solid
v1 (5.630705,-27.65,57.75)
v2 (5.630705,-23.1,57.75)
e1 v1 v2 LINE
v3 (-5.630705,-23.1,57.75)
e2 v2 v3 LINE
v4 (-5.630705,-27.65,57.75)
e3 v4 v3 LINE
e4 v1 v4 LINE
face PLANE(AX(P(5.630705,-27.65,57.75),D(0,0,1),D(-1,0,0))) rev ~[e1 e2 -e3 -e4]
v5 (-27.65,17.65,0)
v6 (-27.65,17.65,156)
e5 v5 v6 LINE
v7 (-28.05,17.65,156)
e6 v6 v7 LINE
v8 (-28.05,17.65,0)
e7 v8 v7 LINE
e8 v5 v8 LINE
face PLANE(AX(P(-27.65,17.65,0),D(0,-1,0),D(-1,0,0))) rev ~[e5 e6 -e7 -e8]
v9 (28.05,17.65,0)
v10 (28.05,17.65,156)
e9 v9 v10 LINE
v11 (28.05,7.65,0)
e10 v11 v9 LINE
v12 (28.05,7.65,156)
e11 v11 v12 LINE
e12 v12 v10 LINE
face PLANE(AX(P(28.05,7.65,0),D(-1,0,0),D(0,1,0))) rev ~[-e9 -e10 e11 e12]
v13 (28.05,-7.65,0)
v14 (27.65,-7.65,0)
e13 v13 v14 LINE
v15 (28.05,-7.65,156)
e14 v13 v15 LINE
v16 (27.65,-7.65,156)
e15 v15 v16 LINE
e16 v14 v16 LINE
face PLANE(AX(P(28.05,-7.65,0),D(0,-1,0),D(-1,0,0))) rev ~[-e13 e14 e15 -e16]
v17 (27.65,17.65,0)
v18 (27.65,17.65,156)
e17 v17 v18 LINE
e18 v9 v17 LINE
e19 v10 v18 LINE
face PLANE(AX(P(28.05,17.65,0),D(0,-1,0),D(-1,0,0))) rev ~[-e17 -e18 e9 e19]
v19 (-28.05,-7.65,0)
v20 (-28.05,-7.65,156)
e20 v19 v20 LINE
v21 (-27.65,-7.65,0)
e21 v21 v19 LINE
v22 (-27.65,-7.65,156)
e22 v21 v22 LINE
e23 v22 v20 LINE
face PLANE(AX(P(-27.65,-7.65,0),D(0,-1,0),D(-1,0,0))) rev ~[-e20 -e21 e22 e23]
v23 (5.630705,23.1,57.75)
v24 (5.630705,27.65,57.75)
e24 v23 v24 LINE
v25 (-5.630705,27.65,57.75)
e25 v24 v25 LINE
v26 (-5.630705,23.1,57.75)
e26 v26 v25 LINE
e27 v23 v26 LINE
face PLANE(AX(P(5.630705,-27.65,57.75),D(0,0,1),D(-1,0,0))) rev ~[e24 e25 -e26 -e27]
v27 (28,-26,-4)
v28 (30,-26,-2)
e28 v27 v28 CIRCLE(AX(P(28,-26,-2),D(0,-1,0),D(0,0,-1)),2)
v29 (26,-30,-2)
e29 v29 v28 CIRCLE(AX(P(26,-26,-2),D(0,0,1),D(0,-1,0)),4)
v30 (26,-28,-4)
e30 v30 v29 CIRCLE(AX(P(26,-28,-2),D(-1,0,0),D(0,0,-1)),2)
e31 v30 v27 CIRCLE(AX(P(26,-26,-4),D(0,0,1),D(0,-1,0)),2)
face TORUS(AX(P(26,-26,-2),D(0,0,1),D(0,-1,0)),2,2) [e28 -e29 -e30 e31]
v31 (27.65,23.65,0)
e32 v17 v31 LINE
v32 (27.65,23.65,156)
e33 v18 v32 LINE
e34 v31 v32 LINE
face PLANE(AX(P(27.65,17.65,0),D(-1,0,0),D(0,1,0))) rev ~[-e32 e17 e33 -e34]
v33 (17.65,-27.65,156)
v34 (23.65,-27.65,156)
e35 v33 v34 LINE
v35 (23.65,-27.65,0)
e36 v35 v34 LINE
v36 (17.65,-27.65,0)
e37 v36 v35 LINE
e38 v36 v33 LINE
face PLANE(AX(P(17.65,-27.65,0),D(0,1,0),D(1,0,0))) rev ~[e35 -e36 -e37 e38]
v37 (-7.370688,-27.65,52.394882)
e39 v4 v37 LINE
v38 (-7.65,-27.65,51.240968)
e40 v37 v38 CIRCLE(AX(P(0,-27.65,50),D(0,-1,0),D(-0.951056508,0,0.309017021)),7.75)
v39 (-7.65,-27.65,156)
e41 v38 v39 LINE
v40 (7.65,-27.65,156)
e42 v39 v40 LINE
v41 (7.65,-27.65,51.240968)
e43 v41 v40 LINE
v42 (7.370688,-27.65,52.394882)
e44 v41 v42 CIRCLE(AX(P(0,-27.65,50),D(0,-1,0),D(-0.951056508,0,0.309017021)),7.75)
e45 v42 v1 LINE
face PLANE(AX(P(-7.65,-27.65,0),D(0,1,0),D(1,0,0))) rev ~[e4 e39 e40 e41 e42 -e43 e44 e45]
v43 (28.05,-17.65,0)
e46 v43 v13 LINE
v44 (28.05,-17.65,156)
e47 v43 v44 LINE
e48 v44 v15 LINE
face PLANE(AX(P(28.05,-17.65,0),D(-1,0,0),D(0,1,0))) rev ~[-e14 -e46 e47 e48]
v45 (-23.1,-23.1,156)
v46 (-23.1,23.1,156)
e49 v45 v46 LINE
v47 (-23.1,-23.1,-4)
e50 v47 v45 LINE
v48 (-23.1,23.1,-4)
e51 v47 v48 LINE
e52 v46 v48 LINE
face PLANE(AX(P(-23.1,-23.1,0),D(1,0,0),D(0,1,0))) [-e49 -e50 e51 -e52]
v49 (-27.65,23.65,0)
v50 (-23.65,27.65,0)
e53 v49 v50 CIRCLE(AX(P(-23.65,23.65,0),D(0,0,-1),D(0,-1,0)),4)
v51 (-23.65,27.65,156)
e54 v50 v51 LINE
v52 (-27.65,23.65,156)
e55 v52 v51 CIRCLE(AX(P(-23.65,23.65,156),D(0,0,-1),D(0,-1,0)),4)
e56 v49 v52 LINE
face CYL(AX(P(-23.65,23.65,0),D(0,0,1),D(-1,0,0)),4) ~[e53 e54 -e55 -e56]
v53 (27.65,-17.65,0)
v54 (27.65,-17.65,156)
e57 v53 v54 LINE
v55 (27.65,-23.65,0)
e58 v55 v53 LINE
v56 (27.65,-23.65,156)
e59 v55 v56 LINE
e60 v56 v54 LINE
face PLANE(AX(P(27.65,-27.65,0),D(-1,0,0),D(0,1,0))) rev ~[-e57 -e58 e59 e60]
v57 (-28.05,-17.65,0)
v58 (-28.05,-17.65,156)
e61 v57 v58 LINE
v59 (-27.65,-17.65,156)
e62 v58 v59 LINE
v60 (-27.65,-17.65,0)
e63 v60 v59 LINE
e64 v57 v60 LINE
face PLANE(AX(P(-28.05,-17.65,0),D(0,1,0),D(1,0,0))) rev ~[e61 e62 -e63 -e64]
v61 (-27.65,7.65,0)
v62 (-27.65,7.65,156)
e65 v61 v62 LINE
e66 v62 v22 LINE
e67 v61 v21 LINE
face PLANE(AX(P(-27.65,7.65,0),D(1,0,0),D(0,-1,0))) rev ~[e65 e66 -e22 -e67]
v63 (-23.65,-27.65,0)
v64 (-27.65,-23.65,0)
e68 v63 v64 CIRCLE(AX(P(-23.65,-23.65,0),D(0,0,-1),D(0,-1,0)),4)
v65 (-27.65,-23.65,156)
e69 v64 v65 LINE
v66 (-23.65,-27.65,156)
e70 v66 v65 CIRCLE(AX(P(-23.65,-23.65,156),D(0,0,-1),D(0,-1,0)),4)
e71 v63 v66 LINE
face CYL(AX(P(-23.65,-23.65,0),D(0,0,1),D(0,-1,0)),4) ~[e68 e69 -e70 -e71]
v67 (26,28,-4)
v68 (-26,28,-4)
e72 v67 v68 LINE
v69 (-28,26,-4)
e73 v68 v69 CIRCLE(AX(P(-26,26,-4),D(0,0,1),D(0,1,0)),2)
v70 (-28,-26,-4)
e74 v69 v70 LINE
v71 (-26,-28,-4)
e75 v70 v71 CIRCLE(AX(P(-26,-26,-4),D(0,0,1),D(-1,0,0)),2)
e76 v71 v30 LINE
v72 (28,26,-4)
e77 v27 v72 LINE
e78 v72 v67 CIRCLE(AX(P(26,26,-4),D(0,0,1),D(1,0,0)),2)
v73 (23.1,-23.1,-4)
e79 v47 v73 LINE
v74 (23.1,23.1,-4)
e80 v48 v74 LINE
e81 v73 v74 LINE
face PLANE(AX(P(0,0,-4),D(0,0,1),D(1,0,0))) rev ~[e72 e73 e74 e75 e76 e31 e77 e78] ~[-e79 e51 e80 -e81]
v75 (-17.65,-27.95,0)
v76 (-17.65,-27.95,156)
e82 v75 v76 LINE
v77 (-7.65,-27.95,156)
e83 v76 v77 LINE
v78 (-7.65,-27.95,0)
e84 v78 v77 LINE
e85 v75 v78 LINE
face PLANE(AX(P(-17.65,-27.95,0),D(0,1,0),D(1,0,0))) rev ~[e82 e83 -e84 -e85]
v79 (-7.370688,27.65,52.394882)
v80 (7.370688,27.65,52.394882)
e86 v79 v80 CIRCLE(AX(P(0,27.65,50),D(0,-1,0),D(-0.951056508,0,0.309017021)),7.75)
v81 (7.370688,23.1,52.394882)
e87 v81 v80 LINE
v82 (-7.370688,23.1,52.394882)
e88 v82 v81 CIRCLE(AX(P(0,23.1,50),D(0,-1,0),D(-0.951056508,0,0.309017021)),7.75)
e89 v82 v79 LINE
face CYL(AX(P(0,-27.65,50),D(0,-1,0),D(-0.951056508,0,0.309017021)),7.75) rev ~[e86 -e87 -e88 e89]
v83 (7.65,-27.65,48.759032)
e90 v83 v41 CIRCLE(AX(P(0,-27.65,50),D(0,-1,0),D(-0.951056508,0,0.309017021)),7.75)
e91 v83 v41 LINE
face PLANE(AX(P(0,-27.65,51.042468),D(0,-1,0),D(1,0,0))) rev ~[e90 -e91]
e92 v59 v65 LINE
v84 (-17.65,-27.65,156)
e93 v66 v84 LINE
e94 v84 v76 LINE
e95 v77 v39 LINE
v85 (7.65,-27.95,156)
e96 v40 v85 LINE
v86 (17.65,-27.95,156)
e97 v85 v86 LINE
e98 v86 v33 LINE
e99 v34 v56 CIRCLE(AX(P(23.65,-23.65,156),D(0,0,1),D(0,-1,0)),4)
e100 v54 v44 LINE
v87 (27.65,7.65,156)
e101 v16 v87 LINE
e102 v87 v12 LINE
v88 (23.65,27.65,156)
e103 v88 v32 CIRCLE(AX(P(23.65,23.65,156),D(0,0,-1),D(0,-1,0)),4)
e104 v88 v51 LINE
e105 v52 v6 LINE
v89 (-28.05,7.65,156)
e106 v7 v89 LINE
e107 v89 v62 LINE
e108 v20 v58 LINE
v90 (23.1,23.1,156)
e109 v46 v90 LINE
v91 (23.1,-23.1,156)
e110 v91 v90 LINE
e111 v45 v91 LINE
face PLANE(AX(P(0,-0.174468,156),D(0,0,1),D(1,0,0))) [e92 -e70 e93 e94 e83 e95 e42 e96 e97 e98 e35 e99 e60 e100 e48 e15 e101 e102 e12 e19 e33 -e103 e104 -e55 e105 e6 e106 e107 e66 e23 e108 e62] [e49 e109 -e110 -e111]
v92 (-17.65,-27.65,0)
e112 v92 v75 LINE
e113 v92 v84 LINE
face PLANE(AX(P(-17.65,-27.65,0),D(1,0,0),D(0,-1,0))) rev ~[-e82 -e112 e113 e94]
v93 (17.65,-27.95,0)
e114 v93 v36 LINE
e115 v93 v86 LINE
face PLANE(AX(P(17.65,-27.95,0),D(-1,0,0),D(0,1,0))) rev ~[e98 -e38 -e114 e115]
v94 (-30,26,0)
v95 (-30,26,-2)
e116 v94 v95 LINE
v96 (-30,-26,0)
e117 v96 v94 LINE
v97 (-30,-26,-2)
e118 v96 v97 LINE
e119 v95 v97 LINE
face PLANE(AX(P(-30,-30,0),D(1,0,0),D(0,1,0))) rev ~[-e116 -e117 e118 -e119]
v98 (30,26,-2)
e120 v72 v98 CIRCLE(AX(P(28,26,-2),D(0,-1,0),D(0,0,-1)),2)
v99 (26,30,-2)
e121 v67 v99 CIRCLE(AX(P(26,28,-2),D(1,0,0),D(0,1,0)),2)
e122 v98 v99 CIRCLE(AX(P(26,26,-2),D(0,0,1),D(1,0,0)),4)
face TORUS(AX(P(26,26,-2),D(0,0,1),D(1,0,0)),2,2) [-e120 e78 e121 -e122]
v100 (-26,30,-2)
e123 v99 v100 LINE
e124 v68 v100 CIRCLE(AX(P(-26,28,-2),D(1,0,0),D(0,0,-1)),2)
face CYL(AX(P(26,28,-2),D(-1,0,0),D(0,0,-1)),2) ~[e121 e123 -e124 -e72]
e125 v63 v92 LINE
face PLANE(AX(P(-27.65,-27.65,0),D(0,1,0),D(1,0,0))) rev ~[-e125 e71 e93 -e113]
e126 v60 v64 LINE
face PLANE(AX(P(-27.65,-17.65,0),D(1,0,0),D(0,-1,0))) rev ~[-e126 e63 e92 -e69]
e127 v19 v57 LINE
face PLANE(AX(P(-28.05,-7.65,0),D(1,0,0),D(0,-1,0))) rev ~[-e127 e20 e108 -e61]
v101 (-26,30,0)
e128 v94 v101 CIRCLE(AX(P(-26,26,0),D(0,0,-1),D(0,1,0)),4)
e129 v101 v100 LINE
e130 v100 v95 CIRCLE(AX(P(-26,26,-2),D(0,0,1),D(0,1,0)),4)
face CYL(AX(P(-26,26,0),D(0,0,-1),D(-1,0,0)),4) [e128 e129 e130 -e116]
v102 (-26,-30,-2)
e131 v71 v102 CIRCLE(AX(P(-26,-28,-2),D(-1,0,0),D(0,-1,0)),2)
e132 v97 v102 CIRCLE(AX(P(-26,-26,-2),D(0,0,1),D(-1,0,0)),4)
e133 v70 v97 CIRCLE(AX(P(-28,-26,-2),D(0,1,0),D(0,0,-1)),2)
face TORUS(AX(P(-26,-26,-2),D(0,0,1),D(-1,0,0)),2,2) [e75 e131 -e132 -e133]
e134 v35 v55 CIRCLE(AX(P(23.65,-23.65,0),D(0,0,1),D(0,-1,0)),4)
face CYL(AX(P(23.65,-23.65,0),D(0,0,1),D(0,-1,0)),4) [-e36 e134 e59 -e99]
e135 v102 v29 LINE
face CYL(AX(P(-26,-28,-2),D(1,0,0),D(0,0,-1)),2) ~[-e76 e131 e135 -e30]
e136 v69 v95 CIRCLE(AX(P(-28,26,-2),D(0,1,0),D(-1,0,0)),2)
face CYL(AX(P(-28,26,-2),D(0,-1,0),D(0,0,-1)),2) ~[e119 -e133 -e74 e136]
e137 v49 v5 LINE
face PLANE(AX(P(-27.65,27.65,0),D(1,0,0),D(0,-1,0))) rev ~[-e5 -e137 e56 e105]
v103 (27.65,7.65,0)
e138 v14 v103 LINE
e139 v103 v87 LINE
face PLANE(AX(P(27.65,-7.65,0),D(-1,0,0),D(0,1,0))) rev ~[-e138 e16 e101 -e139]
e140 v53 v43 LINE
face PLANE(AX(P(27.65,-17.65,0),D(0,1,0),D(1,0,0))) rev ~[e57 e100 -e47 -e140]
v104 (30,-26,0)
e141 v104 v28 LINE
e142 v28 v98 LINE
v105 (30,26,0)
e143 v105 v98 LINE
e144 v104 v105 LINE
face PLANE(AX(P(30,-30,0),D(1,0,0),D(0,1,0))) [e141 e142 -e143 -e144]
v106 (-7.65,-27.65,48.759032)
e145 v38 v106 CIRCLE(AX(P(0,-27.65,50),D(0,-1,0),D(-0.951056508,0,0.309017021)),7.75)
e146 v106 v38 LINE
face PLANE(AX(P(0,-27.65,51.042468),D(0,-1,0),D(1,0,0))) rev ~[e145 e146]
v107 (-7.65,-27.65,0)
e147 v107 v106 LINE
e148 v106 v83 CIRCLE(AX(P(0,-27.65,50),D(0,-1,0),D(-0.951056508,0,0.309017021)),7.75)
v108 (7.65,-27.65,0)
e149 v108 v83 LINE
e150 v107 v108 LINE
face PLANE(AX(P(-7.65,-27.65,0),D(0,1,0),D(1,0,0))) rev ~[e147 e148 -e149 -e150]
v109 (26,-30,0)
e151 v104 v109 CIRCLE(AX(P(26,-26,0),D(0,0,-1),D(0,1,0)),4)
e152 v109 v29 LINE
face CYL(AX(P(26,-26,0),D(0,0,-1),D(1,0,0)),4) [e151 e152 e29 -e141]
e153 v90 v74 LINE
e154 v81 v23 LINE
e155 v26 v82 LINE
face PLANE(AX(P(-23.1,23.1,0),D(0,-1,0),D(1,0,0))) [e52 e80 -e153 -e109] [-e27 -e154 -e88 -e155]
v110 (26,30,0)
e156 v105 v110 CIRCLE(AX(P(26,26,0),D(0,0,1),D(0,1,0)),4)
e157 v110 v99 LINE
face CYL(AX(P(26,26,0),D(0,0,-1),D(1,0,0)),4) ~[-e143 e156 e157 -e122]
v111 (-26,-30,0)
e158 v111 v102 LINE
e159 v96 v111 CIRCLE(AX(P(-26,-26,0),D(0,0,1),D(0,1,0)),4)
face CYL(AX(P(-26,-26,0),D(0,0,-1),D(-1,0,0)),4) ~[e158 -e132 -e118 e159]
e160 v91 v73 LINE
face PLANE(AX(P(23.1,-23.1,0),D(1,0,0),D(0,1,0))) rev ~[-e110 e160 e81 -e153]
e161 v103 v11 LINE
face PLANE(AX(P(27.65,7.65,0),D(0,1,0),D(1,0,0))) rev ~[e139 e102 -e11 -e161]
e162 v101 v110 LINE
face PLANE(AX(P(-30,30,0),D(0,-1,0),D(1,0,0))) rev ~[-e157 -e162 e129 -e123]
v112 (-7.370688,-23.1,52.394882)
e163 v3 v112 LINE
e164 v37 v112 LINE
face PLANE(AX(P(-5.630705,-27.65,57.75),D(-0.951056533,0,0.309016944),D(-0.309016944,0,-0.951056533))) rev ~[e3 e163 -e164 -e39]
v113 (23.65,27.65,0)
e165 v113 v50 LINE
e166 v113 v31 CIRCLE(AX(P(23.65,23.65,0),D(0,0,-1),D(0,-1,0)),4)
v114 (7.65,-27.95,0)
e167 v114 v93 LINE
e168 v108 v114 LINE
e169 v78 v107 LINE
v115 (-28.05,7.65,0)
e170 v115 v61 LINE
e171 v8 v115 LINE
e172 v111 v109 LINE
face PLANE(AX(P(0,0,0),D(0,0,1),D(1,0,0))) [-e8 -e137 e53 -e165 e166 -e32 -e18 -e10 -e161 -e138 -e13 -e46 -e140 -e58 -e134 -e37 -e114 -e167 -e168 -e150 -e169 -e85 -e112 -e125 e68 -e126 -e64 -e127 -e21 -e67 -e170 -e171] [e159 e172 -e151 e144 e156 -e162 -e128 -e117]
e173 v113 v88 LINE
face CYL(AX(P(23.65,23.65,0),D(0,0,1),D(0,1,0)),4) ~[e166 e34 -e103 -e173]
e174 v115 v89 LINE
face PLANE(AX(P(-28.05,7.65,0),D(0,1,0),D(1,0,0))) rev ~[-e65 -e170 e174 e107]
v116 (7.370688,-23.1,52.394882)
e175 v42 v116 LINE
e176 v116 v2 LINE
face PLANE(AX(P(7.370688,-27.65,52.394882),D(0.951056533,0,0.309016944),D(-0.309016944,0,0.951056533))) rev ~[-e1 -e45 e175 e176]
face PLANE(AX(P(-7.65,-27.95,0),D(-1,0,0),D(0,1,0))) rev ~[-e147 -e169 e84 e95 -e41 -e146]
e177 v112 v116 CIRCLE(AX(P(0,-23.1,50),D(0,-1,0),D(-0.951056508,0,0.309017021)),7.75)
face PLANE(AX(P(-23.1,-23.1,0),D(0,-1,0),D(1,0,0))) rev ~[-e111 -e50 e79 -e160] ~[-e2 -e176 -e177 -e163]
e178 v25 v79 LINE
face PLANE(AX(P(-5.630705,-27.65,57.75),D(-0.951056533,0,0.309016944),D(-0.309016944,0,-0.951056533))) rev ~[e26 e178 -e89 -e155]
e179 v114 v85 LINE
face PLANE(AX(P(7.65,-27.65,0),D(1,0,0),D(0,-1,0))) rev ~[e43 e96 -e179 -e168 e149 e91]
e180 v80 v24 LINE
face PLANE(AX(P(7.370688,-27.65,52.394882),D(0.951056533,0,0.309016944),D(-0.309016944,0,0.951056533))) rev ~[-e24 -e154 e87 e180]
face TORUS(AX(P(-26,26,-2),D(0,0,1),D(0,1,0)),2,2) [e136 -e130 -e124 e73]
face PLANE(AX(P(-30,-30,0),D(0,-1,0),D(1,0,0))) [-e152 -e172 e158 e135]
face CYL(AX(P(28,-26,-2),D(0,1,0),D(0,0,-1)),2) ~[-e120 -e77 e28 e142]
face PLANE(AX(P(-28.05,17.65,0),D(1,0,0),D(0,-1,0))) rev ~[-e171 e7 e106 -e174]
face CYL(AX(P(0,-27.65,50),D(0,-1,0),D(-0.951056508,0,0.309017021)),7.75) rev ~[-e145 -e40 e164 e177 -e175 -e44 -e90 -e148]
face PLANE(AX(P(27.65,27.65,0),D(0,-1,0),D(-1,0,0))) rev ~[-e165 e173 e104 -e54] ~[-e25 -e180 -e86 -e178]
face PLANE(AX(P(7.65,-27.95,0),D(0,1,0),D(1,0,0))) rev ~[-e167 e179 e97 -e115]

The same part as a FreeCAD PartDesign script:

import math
import FreeCAD as App
import Part
import Sketcher

V = App.Vector
Q = App.Units.Quantity


def edges_at(feature, points):
    """Names of the edges that pass closest to the given points."""
    edges = feature.Shape.Edges
    near = lambda p: min(range(len(edges)), key=lambda i: edges[i].distToShape(Part.Vertex(*p))[0])
    return sorted({f"Edge{near(p) + 1}" for p in points})


def add_polygon(sketch, points):
    """Adds a closed chain of lines whose ends are joined by coincident constraints."""
    first, n = sketch.GeometryCount, len(points)
    for a, b in zip(points, points[1:] + points[:1]):
        sketch.addGeometry(Part.LineSegment(App.Vector(*a, 0), App.Vector(*b, 0)), False)
    for i in range(n):
        sketch.addConstraint(Sketcher.Constraint("Coincident", first + i, 2, first + (i + 1) % n, 1))

doc = App.newDocument("Part")
body = doc.addObject("PartDesign::Body", "Body")

# Sketch on XY plane
sketch1 = doc.addObject("Sketcher::SketchObject", "Sketch")
body.addObject(sketch1)
sketch1.AttachmentSupport = (doc.XY_Plane, [""])
sketch1.MapMode = "FlatFace"
add_polygon(sketch1, [(27.65, 17.65), (27.65, 27.65), (-27.65, 27.65), (-27.65, 17.65), (-28.05, 17.65), (-28.05, 7.65), (-27.65, 7.65), (-27.65, -7.65), (-28.05, -7.65), (-28.05, -17.65), (-27.65, -17.65), (-27.65, -27.65), (-17.65, -27.65), (-17.65, -27.95), (-7.65, -27.95), (-7.65, -27.65), (7.65, -27.65), (7.65, -27.95), (17.65, -27.95), (17.65, -27.65), (27.65, -27.65), (27.65, -17.65), (28.05, -17.65), (28.05, -7.65), (27.65, -7.65), (27.65, 7.65), (28.05, 7.65), (28.05, 17.65)])  # lines 0-27
add_polygon(sketch1, [(23.1, -23.1), (-23.1, -23.1), (-23.1, 23.1), (23.1, 23.1)])  # lines 28-31
sketch1.addConstraint(Sketcher.Constraint("Vertical", 0))
sketch1.addConstraint(Sketcher.Constraint("Horizontal", 1))
sketch1.addConstraint(Sketcher.Constraint("Vertical", 2))
sketch1.addConstraint(Sketcher.Constraint("Horizontal", 3))
sketch1.addConstraint(Sketcher.Constraint("Vertical", 4))
sketch1.addConstraint(Sketcher.Constraint("Horizontal", 5))
sketch1.addConstraint(Sketcher.Constraint("Vertical", 6))
sketch1.addConstraint(Sketcher.Constraint("Horizontal", 7))
sketch1.addConstraint(Sketcher.Constraint("Vertical", 8))
sketch1.addConstraint(Sketcher.Constraint("Horizontal", 9))
sketch1.addConstraint(Sketcher.Constraint("Vertical", 10))
sketch1.addConstraint(Sketcher.Constraint("Horizontal", 11))
sketch1.addConstraint(Sketcher.Constraint("Vertical", 12))
sketch1.addConstraint(Sketcher.Constraint("Horizontal", 13))
sketch1.addConstraint(Sketcher.Constraint("Vertical", 14))
sketch1.addConstraint(Sketcher.Constraint("Horizontal", 15))
sketch1.addConstraint(Sketcher.Constraint("Vertical", 16))
sketch1.addConstraint(Sketcher.Constraint("Horizontal", 17))
sketch1.addConstraint(Sketcher.Constraint("Vertical", 18))
sketch1.addConstraint(Sketcher.Constraint("Horizontal", 19))
sketch1.addConstraint(Sketcher.Constraint("Vertical", 20))
sketch1.addConstraint(Sketcher.Constraint("Horizontal", 21))
sketch1.addConstraint(Sketcher.Constraint("Vertical", 22))
sketch1.addConstraint(Sketcher.Constraint("Horizontal", 23))
sketch1.addConstraint(Sketcher.Constraint("Vertical", 24))
sketch1.addConstraint(Sketcher.Constraint("Horizontal", 25))
sketch1.addConstraint(Sketcher.Constraint("Vertical", 26))
sketch1.addConstraint(Sketcher.Constraint("Horizontal", 27))
sketch1.addConstraint(Sketcher.Constraint("Horizontal", 28))
sketch1.addConstraint(Sketcher.Constraint("Vertical", 29))
sketch1.addConstraint(Sketcher.Constraint("Horizontal", 30))
sketch1.addConstraint(Sketcher.Constraint("Vertical", 31))
sketch1.addConstraint(Sketcher.Constraint("Symmetric", 0, 2, 10, 2, -1, 1))
sketch1.addConstraint(Sketcher.Constraint("Symmetric", 1, 2, 19, 2, -1, 1))
sketch1.addConstraint(Sketcher.Constraint("Symmetric", 3, 2, 21, 2, -1, 1))
sketch1.addConstraint(Sketcher.Constraint("Symmetric", 5, 2, 23, 2, -1, 1))
sketch1.addConstraint(Sketcher.Constraint("Symmetric", 7, 2, 25, 2, -1, 1))
sketch1.addConstraint(Sketcher.Constraint("Symmetric", 28, 2, 30, 2, -1, 1))
sketch1.addConstraint(Sketcher.Constraint("Symmetric", 13, 2, 16, 2, -2))
sketch1.addConstraint(Sketcher.Constraint("Symmetric", 9, 2, 20, 2, -2))
sketch1.addConstraint(Sketcher.Constraint("Symmetric", 7, 2, 22, 2, -2))
sketch1.addConstraint(Sketcher.Constraint("Horizontal", 11, 2, 14, 2))
sketch1.addConstraint(Sketcher.Constraint("Horizontal", 3, 2, 26, 2))
sketch1.addConstraint(Sketcher.Constraint("Vertical", 2, 2, 5, 2))
sketch1.addConstraint(Sketcher.Constraint("Equal", 11, 13))
sketch1.addConstraint(Sketcher.Constraint("Equal", 13, 17))
sketch1.addConstraint(Sketcher.Constraint("Equal", 19, 0))
sketch1.addConstraint(Sketcher.Constraint("Equal", 2, 4))
sketch1.addConstraint(Sketcher.Constraint("Equal", 15, 6))
sketch1.addConstraint(Sketcher.Constraint("Equal", 30, 29))
sketch1.addConstraint(Sketcher.Constraint("DistanceX", 11, 1, 11, 2, 10.0))
sketch1.addConstraint(Sketcher.Constraint("DistanceX", 1, 2, 1, 1, 55.3))
sketch1.addConstraint(Sketcher.Constraint("DistanceX", 3, 2, 3, 1, 0.4))
sketch1.addConstraint(Sketcher.Constraint("DistanceX", 28, 2, 28, 1, 46.2))
sketch1.addConstraint(Sketcher.Constraint("DistanceY", 12, 2, 12, 1, 0.3))
pad1 = doc.addObject("PartDesign::Pad", "Pad")
body.addObject(pad1)
pad1.Profile = sketch1
pad1.Length = 156

# Sketch on XY plane
sketch2 = doc.addObject("Sketcher::SketchObject", "Sketch001")
body.addObject(sketch2)
sketch2.AttachmentSupport = (doc.XY_Plane, [""])
sketch2.MapMode = "FlatFace"
add_polygon(sketch2, [(-30, 30), (-30, -30), (30, -30), (30, 30)])  # lines 0-3
add_polygon(sketch2, [(23, -23), (-23, -23), (-23, 23), (23, 23)])  # lines 4-7
sketch2.addConstraint(Sketcher.Constraint("Vertical", 0))
sketch2.addConstraint(Sketcher.Constraint("Horizontal", 1))
sketch2.addConstraint(Sketcher.Constraint("Vertical", 2))
sketch2.addConstraint(Sketcher.Constraint("Horizontal", 3))
sketch2.addConstraint(Sketcher.Constraint("Horizontal", 4))
sketch2.addConstraint(Sketcher.Constraint("Vertical", 5))
sketch2.addConstraint(Sketcher.Constraint("Horizontal", 6))
sketch2.addConstraint(Sketcher.Constraint("Vertical", 7))
sketch2.addConstraint(Sketcher.Constraint("Symmetric", 0, 2, 2, 2, -1, 1))
sketch2.addConstraint(Sketcher.Constraint("Symmetric", 4, 2, 6, 2, -1, 1))
sketch2.addConstraint(Sketcher.Constraint("Equal", 3, 0))
sketch2.addConstraint(Sketcher.Constraint("Equal", 6, 5))
sketch2.addConstraint(Sketcher.Constraint("DistanceX", 1, 1, 1, 2, 60.0))
sketch2.addConstraint(Sketcher.Constraint("DistanceX", 4, 2, 4, 1, 46.2))
pad2 = doc.addObject("PartDesign::Pad", "Pad001")
body.addObject(pad2)
pad2.Profile = sketch2
pad2.Length = 4
pad2.Reversed = True
doc.recompute()

fillet = doc.addObject("PartDesign::Fillet", "Fillet")
body.addObject(fillet)
fillet.Base = (pad2, edges_at(pad2, [
    (-27.65, 27.65, 78),
    (-27.65, -27.65, 78),
    (27.65, -27.65, 78),
    (27.65, 27.65, 78),
    (30, 30, -2),
    (30, -30, -2),
    (-30, 30, -2),
    (-30, -30, -2),
]))
fillet.Radius = 4
doc.recompute()

fillet2 = doc.addObject("PartDesign::Fillet", "Fillet001")
body.addObject(fillet2)
fillet2.Base = (fillet, edges_at(fillet, [(30, 0, -4)]))
fillet2.Radius = 2

# Sketch on XZ plane
sketch3 = doc.addObject("Sketcher::SketchObject", "Sketch002")
body.addObject(sketch3)
sketch3.AttachmentSupport = (doc.XZ_Plane, [""])
sketch3.MapMode = "FlatFace"
sketch3.AttachmentOffset = App.Placement(V(0, 0, 27.65), App.Rotation())
sketch3.addGeometry(Part.LineSegment(V(-6, 58, 0), V(-7, 52, 0)), False)
sketch3.addGeometry(Part.ArcOfCircle(Part.Circle(V(0, 50, 0), V(0, 0, 1), 8), math.radians(162), math.radians(378)), False)
sketch3.addGeometry(Part.LineSegment(V(7, 52, 0), V(6, 58, 0)), False)
sketch3.addGeometry(Part.LineSegment(V(6, 58, 0), V(-6, 58, 0)), False)
sketch3.addConstraint(Sketcher.Constraint("Tangent", 0, 2, 1, 1))
sketch3.addConstraint(Sketcher.Constraint("Tangent", 1, 2, 2, 1))
sketch3.addConstraint(Sketcher.Constraint("Coincident", 2, 2, 3, 1))
sketch3.addConstraint(Sketcher.Constraint("Coincident", 3, 2, 0, 1))
sketch3.addConstraint(Sketcher.Constraint("Horizontal", 3))
sketch3.addConstraint(Sketcher.Constraint("Symmetric", 0, 2, 1, 2, -2))
sketch3.addConstraint(Sketcher.Constraint("Angle", 0, Q("-107.999997 deg")))
sketch3.addConstraint(Sketcher.Constraint("Radius", 1, 7.75))
sketch3.addConstraint(Sketcher.Constraint("DistanceY", -1, 1, 1, 3, 50.0))
sketch3.addConstraint(Sketcher.Constraint("DistanceY", -1, 1, 2, 2, 57.75))
pocket1 = doc.addObject("PartDesign::Pocket", "Pocket")
body.addObject(pocket1)
pocket1.Profile = sketch3
pocket1.Length = 80

doc.recompute()
